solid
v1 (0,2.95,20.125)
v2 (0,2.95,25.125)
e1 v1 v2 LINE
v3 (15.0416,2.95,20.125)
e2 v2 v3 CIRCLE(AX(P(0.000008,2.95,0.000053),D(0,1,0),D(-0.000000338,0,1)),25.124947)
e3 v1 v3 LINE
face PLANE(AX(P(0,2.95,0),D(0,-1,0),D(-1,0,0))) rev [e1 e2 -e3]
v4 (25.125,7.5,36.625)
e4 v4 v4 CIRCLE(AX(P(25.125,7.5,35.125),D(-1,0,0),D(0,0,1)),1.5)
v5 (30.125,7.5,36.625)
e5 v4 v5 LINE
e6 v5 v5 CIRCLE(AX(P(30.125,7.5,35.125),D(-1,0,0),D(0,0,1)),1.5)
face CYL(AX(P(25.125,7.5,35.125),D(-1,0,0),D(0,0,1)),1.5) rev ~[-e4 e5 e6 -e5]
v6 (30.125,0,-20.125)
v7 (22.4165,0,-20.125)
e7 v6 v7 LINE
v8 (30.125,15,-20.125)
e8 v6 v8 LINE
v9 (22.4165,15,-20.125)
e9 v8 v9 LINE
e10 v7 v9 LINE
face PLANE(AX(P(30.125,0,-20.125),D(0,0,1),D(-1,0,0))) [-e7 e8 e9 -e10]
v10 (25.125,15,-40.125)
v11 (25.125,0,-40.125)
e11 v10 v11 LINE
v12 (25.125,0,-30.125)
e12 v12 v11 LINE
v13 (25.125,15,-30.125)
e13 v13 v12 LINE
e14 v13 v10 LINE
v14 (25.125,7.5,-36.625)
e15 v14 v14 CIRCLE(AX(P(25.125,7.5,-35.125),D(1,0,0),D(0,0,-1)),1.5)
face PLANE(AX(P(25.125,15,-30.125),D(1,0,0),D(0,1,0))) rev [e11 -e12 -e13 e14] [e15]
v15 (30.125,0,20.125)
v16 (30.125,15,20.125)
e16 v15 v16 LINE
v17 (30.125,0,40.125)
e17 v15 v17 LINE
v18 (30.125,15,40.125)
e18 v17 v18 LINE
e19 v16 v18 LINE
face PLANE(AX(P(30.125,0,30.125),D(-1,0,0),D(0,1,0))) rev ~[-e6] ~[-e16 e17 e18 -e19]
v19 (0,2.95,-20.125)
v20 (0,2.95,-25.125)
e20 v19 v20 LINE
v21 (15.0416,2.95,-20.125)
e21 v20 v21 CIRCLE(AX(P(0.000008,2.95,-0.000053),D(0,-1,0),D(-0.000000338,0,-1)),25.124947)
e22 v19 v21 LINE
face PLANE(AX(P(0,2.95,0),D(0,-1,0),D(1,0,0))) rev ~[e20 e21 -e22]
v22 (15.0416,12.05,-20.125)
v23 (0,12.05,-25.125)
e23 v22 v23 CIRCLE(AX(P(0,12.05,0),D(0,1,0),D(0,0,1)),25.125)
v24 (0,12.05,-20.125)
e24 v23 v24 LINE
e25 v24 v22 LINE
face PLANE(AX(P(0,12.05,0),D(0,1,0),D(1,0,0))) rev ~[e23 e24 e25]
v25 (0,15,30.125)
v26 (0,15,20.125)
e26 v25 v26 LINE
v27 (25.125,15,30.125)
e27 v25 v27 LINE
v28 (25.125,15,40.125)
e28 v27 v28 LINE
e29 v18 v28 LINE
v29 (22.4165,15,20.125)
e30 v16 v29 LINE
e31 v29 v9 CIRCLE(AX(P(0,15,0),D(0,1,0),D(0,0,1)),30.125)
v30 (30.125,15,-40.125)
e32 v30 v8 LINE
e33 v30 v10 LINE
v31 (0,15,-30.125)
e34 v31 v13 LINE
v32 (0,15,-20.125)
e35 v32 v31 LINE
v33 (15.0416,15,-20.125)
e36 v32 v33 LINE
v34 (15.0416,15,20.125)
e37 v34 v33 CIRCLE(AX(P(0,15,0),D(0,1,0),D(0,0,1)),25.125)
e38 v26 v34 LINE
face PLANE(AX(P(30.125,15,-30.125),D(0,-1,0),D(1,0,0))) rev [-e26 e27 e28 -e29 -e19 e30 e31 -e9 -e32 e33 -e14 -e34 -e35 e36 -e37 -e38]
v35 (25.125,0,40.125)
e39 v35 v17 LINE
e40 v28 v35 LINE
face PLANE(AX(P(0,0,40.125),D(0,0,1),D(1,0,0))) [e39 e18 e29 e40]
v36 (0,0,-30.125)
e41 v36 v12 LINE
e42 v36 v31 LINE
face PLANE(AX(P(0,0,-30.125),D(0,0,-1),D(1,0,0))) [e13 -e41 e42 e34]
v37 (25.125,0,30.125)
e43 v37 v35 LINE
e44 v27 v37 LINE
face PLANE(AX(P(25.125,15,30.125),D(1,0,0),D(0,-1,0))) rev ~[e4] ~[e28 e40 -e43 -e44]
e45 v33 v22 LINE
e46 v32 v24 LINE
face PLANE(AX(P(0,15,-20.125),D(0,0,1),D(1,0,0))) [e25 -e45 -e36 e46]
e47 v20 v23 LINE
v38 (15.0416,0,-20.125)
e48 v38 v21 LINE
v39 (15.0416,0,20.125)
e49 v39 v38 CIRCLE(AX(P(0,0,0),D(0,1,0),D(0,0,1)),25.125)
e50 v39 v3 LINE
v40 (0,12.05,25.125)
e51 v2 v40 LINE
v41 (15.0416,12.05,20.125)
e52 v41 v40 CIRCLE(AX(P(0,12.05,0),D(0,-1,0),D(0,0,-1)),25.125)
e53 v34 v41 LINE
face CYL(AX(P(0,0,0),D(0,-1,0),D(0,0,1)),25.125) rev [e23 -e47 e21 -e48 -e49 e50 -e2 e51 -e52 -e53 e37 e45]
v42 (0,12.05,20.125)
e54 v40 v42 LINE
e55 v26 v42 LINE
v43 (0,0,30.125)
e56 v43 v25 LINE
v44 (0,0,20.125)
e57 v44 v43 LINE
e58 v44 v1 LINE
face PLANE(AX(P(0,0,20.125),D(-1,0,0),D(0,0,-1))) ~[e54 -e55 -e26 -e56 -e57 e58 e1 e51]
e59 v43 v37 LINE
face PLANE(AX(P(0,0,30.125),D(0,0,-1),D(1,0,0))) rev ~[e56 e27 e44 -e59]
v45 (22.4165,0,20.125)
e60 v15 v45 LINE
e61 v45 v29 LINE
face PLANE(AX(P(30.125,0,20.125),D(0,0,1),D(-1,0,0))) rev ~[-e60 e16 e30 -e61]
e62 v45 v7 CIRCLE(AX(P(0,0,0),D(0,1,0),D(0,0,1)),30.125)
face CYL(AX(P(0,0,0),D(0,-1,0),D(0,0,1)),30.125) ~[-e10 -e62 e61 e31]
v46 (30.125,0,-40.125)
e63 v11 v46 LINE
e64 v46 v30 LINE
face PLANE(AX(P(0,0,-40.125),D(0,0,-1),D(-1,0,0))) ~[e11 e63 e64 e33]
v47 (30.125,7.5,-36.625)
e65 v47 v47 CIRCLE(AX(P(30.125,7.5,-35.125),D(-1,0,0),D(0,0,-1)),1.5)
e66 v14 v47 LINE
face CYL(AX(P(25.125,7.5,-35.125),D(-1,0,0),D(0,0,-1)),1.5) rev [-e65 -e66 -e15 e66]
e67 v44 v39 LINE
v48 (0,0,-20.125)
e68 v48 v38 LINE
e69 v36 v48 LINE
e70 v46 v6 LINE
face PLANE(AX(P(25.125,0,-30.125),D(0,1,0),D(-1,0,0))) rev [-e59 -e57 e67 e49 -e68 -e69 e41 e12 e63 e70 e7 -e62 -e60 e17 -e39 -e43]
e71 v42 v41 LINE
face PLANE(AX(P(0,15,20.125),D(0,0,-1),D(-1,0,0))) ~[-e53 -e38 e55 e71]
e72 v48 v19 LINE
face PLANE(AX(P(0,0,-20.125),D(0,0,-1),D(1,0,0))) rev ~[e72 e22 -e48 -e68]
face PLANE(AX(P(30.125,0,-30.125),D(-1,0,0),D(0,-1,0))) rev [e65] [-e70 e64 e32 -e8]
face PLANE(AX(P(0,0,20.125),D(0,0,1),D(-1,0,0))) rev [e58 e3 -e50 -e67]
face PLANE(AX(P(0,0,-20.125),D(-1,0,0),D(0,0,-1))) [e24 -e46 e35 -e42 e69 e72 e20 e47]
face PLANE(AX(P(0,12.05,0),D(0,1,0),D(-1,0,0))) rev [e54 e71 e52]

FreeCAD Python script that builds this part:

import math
import FreeCAD as App
import Part
import Sketcher
from FreeCAD import Vector
Q = App.Units.Quantity


def add_polygon(sketch, points):
    """Adds a closed chain of lines whose ends are joined by coincident constraints."""
    first, n = sketch.GeometryCount, len(points)
    for a, b in zip(points, points[1:] + points[:1]):
        sketch.addGeometry(Part.LineSegment(App.Vector(*a, 0), App.Vector(*b, 0)), False)
    for i in range(n):
        sketch.addConstraint(Sketcher.Constraint("Coincident", first + i, 2, first + (i + 1) % n, 1))

doc = App.newDocument("Part")
body = doc.addObject("PartDesign::Body", "Body")

sketch1 = doc.addObject("Sketcher::SketchObject", "Sketch")
body.addObject(sketch1)
sketch1.AttachmentSupport = (doc.XZ_Plane, [""])
sketch1.MapMode = "FlatFace"
sketch1.addGeometry(Part.ArcOfCircle(Part.Circle(Vector(0, 0, 0), Vector(0, 0, 1), 25), math.radians(-90), math.radians(90)), False)
sketch1.addGeometry(Part.LineSegment(Vector(0, 25, 0), Vector(0, 30, 0)), False)
sketch1.addGeometry(Part.LineSegment(Vector(0, 30, 0), Vector(30, 30, 0)), False)
sketch1.addGeometry(Part.LineSegment(Vector(30, 30, 0), Vector(30, 20, 0)), False)
sketch1.addGeometry(Part.LineSegment(Vector(30, 20, 0), Vector(22, 20, 0)), False)
sketch1.addGeometry(Part.ArcOfCircle(Part.Circle(Vector(0, 0, 0), Vector(0, 0, 1), 30), math.radians(-42), math.radians(42)), False)
sketch1.addGeometry(Part.LineSegment(Vector(22, -20, 0), Vector(30, -20, 0)), False)
sketch1.addGeometry(Part.LineSegment(Vector(30, -20, 0), Vector(30, -30, 0)), False)
sketch1.addGeometry(Part.LineSegment(Vector(30, -30, 0), Vector(0, -30, 0)), False)
sketch1.addGeometry(Part.LineSegment(Vector(0, -30, 0), Vector(0, -25, 0)), False)
sketch1.addConstraint(Sketcher.Constraint("Coincident", 0, 2, 1, 1))
sketch1.addConstraint(Sketcher.Constraint("Coincident", 1, 2, 2, 1))
sketch1.addConstraint(Sketcher.Constraint("Coincident", 2, 2, 3, 1))
sketch1.addConstraint(Sketcher.Constraint("Coincident", 3, 2, 4, 1))
sketch1.addConstraint(Sketcher.Constraint("Coincident", 4, 2, 5, 2))
sketch1.addConstraint(Sketcher.Constraint("Coincident", 5, 1, 6, 1))
sketch1.addConstraint(Sketcher.Constraint("Coincident", 6, 2, 7, 1))
sketch1.addConstraint(Sketcher.Constraint("Coincident", 7, 2, 8, 1))
sketch1.addConstraint(Sketcher.Constraint("Coincident", 8, 2, 9, 1))
sketch1.addConstraint(Sketcher.Constraint("Coincident", 9, 2, 0, 1))
sketch1.addConstraint(Sketcher.Constraint("Vertical", 1))
sketch1.addConstraint(Sketcher.Constraint("Horizontal", 2))
sketch1.addConstraint(Sketcher.Constraint("Vertical", 3))
sketch1.addConstraint(Sketcher.Constraint("Horizontal", 4))
sketch1.addConstraint(Sketcher.Constraint("Horizontal", 6))
sketch1.addConstraint(Sketcher.Constraint("Vertical", 7))
sketch1.addConstraint(Sketcher.Constraint("Horizontal", 8))
sketch1.addConstraint(Sketcher.Constraint("Vertical", 9))
sketch1.addConstraint(Sketcher.Constraint("Coincident", 0, 3, -1, 1))
sketch1.addConstraint(Sketcher.Constraint("Coincident", 5, 3, -1, 1))
sketch1.addConstraint(Sketcher.Constraint("Symmetric", 1, 2, 8, 2, -1, 1))
sketch1.addConstraint(Sketcher.Constraint("Symmetric", 3, 2, 6, 2, -1))
sketch1.addConstraint(Sketcher.Constraint("PointOnObject", 0, 2, -2))
sketch1.addConstraint(Sketcher.Constraint("DistanceY", 1, 1, 1, 2, Q("5 mm")))
sketch1.addConstraint(Sketcher.Constraint("DistanceY", 3, 2, 3, 1, Q("10 mm")))
sketch1.addConstraint(Sketcher.Constraint("Radius", 0, Q("25.125 mm")))
sketch1.addConstraint(Sketcher.Constraint("Radius", 5, Q("30.125 mm")))
sketch1.addConstraint(Sketcher.Constraint("DistanceX", 2, 1, 2, 2, Q("30.125 mm")))
pad1 = doc.addObject("PartDesign::Pad", "Pad")
body.addObject(pad1)
pad1.Profile = sketch1
pad1.Length = 15
pad1.Reversed = True

sketch2 = doc.addObject("Sketcher::SketchObject", "Sketch001")
body.addObject(sketch2)
sketch2.AttachmentSupport = (doc.XZ_Plane, [""])
sketch2.MapMode = "FlatFace"
sketch2.AttachmentOffset = App.Placement(Vector(0, 0, -15), App.Rotation())
sketch2.addGeometry(Part.LineSegment(Vector(0, -20, 0), Vector(15, -20, 0)), False)
sketch2.addGeometry(Part.ArcOfCircle(Part.Circle(Vector(0, 0, 0), Vector(0, 0, 1), 25), math.radians(-90), math.radians(-53)), False)
sketch2.addGeometry(Part.LineSegment(Vector(0, -25, 0), Vector(0, -20, 0)), False)
sketch2.addConstraint(Sketcher.Constraint("Coincident", 0, 2, 1, 2))
sketch2.addConstraint(Sketcher.Constraint("Coincident", 1, 1, 2, 1))
sketch2.addConstraint(Sketcher.Constraint("Coincident", 2, 2, 0, 1))
sketch2.addConstraint(Sketcher.Constraint("Horizontal", 0))
sketch2.addConstraint(Sketcher.Constraint("Vertical", 2))
sketch2.addConstraint(Sketcher.Constraint("Coincident", 1, 3, -1, 1))
sketch2.addConstraint(Sketcher.Constraint("PointOnObject", 1, 1, -2))
sketch2.addConstraint(Sketcher.Constraint("DistanceY", 2, 1, 2, 2, Q("5 mm")))
sketch2.addConstraint(Sketcher.Constraint("Radius", 1, Q("25.125 mm")))
pad2 = doc.addObject("PartDesign::Pad", "Pad001")
body.addObject(pad2)
pad2.Profile = sketch2
pad2.Length = 2.95
doc.recompute()

mirrored = doc.addObject("PartDesign::Mirrored", "Mirrored")
body.addObject(mirrored)
mirrored.Originals = [pad2]
mirrored.MirrorPlane = (doc.XY_Plane, [""])
body.Tip = mirrored

sketch3 = doc.addObject("Sketcher::SketchObject", "Sketch002")
body.addObject(sketch3)
sketch3.AttachmentSupport = (doc.XZ_Plane, [""])
sketch3.MapMode = "FlatFace"
sketch3.addGeometry(Part.LineSegment(Vector(0, -20, 0), Vector(0, -25, 0)), False)
sketch3.addGeometry(Part.ArcOfCircle(Part.Circle(Vector(0, 0, 0), Vector(0, 0, 1), 25), math.radians(-90), math.radians(-53)), False)
sketch3.addGeometry(Part.LineSegment(Vector(15, -20, 0), Vector(0, -20, 0)), False)
sketch3.addConstraint(Sketcher.Constraint("Coincident", 0, 2, 1, 1))
sketch3.addConstraint(Sketcher.Constraint("Coincident", 1, 2, 2, 1))
sketch3.addConstraint(Sketcher.Constraint("Coincident", 2, 2, 0, 1))
sketch3.addConstraint(Sketcher.Constraint("Vertical", 0))
sketch3.addConstraint(Sketcher.Constraint("Horizontal", 2))
sketch3.addConstraint(Sketcher.Constraint("Coincident", 1, 3, -1, 1))
sketch3.addConstraint(Sketcher.Constraint("PointOnObject", 0, 2, -2))
sketch3.addConstraint(Sketcher.Constraint("DistanceY", 0, 2, 0, 1, Q("5 mm")))
sketch3.addConstraint(Sketcher.Constraint("Radius", 1, Q("25.125 mm")))
pad3 = doc.addObject("PartDesign::Pad", "Pad002")
body.addObject(pad3)
pad3.Profile = sketch3
pad3.Length = 2.95
pad3.Reversed = True
doc.recompute()

mirrored2 = doc.addObject("PartDesign::Mirrored", "Mirrored001")
body.addObject(mirrored2)
mirrored2.Originals = [pad3]
mirrored2.MirrorPlane = (doc.XY_Plane, [""])
body.Tip = mirrored2

sketch4 = doc.addObject("Sketcher::SketchObject", "Sketch003")
body.addObject(sketch4)
sketch4.AttachmentSupport = (doc.XY_Plane, [""])
sketch4.MapMode = "FlatFace"
sketch4.AttachmentOffset = App.Placement(Vector(0, 0, 30.125), App.Rotation())
add_polygon(sketch4, [(25, 0), (30, 0), (30, 15), (25, 15)])
sketch4.addConstraint(Sketcher.Constraint("Horizontal", 0))
sketch4.addConstraint(Sketcher.Constraint("Vertical", 1))
sketch4.addConstraint(Sketcher.Constraint("Horizontal", 2))
sketch4.addConstraint(Sketcher.Constraint("Vertical", 3))
sketch4.addConstraint(Sketcher.Constraint("PointOnObject", 0, 2, -1))
sketch4.addConstraint(Sketcher.Constraint("DistanceX", 0, 1, 0, 2, Q("5 mm")))
sketch4.addConstraint(Sketcher.Constraint("DistanceY", 1, 1, 1, 2, Q("15 mm")))
sketch4.addConstraint(Sketcher.Constraint("DistanceX", -1, 1, 0, 2, Q("30.125 mm")))
pad4 = doc.addObject("PartDesign::Pad", "Pad003")
body.addObject(pad4)
pad4.Profile = sketch4
pad4.Length = 10

sketch5 = doc.addObject("Sketcher::SketchObject", "Sketch004")
body.addObject(sketch5)
sketch5.AttachmentSupport = (doc.YZ_Plane, [""])
sketch5.MapMode = "FlatFace"
sketch5.AttachmentOffset = App.Placement(Vector(0, 0, 25.125), App.Rotation())
sketch5.addGeometry(Part.Circle(Vector(7.5, 35.1, 0), Vector(0, 0, 1), 1.5), False)
sketch5.addConstraint(Sketcher.Constraint("Diameter", 0, Q("3 mm")))
sketch5.addConstraint(Sketcher.Constraint("DistanceX", -1, 1, 0, 3, Q("7.5 mm")))
sketch5.addConstraint(Sketcher.Constraint("DistanceY", -1, 1, 0, 3, Q("35.125 mm")))
pocket1 = doc.addObject("PartDesign::Pocket", "Pocket")
body.addObject(pocket1)
pocket1.Profile = sketch5
pocket1.Length = 10
pocket1.Reversed = True
doc.recompute()

mirrored3 = doc.addObject("PartDesign::Mirrored", "Mirrored002")
body.addObject(mirrored3)
mirrored3.Originals = [pad4, pocket1]
mirrored3.MirrorPlane = (doc.XY_Plane, [""])
body.Tip = mirrored3

doc.recompute()
